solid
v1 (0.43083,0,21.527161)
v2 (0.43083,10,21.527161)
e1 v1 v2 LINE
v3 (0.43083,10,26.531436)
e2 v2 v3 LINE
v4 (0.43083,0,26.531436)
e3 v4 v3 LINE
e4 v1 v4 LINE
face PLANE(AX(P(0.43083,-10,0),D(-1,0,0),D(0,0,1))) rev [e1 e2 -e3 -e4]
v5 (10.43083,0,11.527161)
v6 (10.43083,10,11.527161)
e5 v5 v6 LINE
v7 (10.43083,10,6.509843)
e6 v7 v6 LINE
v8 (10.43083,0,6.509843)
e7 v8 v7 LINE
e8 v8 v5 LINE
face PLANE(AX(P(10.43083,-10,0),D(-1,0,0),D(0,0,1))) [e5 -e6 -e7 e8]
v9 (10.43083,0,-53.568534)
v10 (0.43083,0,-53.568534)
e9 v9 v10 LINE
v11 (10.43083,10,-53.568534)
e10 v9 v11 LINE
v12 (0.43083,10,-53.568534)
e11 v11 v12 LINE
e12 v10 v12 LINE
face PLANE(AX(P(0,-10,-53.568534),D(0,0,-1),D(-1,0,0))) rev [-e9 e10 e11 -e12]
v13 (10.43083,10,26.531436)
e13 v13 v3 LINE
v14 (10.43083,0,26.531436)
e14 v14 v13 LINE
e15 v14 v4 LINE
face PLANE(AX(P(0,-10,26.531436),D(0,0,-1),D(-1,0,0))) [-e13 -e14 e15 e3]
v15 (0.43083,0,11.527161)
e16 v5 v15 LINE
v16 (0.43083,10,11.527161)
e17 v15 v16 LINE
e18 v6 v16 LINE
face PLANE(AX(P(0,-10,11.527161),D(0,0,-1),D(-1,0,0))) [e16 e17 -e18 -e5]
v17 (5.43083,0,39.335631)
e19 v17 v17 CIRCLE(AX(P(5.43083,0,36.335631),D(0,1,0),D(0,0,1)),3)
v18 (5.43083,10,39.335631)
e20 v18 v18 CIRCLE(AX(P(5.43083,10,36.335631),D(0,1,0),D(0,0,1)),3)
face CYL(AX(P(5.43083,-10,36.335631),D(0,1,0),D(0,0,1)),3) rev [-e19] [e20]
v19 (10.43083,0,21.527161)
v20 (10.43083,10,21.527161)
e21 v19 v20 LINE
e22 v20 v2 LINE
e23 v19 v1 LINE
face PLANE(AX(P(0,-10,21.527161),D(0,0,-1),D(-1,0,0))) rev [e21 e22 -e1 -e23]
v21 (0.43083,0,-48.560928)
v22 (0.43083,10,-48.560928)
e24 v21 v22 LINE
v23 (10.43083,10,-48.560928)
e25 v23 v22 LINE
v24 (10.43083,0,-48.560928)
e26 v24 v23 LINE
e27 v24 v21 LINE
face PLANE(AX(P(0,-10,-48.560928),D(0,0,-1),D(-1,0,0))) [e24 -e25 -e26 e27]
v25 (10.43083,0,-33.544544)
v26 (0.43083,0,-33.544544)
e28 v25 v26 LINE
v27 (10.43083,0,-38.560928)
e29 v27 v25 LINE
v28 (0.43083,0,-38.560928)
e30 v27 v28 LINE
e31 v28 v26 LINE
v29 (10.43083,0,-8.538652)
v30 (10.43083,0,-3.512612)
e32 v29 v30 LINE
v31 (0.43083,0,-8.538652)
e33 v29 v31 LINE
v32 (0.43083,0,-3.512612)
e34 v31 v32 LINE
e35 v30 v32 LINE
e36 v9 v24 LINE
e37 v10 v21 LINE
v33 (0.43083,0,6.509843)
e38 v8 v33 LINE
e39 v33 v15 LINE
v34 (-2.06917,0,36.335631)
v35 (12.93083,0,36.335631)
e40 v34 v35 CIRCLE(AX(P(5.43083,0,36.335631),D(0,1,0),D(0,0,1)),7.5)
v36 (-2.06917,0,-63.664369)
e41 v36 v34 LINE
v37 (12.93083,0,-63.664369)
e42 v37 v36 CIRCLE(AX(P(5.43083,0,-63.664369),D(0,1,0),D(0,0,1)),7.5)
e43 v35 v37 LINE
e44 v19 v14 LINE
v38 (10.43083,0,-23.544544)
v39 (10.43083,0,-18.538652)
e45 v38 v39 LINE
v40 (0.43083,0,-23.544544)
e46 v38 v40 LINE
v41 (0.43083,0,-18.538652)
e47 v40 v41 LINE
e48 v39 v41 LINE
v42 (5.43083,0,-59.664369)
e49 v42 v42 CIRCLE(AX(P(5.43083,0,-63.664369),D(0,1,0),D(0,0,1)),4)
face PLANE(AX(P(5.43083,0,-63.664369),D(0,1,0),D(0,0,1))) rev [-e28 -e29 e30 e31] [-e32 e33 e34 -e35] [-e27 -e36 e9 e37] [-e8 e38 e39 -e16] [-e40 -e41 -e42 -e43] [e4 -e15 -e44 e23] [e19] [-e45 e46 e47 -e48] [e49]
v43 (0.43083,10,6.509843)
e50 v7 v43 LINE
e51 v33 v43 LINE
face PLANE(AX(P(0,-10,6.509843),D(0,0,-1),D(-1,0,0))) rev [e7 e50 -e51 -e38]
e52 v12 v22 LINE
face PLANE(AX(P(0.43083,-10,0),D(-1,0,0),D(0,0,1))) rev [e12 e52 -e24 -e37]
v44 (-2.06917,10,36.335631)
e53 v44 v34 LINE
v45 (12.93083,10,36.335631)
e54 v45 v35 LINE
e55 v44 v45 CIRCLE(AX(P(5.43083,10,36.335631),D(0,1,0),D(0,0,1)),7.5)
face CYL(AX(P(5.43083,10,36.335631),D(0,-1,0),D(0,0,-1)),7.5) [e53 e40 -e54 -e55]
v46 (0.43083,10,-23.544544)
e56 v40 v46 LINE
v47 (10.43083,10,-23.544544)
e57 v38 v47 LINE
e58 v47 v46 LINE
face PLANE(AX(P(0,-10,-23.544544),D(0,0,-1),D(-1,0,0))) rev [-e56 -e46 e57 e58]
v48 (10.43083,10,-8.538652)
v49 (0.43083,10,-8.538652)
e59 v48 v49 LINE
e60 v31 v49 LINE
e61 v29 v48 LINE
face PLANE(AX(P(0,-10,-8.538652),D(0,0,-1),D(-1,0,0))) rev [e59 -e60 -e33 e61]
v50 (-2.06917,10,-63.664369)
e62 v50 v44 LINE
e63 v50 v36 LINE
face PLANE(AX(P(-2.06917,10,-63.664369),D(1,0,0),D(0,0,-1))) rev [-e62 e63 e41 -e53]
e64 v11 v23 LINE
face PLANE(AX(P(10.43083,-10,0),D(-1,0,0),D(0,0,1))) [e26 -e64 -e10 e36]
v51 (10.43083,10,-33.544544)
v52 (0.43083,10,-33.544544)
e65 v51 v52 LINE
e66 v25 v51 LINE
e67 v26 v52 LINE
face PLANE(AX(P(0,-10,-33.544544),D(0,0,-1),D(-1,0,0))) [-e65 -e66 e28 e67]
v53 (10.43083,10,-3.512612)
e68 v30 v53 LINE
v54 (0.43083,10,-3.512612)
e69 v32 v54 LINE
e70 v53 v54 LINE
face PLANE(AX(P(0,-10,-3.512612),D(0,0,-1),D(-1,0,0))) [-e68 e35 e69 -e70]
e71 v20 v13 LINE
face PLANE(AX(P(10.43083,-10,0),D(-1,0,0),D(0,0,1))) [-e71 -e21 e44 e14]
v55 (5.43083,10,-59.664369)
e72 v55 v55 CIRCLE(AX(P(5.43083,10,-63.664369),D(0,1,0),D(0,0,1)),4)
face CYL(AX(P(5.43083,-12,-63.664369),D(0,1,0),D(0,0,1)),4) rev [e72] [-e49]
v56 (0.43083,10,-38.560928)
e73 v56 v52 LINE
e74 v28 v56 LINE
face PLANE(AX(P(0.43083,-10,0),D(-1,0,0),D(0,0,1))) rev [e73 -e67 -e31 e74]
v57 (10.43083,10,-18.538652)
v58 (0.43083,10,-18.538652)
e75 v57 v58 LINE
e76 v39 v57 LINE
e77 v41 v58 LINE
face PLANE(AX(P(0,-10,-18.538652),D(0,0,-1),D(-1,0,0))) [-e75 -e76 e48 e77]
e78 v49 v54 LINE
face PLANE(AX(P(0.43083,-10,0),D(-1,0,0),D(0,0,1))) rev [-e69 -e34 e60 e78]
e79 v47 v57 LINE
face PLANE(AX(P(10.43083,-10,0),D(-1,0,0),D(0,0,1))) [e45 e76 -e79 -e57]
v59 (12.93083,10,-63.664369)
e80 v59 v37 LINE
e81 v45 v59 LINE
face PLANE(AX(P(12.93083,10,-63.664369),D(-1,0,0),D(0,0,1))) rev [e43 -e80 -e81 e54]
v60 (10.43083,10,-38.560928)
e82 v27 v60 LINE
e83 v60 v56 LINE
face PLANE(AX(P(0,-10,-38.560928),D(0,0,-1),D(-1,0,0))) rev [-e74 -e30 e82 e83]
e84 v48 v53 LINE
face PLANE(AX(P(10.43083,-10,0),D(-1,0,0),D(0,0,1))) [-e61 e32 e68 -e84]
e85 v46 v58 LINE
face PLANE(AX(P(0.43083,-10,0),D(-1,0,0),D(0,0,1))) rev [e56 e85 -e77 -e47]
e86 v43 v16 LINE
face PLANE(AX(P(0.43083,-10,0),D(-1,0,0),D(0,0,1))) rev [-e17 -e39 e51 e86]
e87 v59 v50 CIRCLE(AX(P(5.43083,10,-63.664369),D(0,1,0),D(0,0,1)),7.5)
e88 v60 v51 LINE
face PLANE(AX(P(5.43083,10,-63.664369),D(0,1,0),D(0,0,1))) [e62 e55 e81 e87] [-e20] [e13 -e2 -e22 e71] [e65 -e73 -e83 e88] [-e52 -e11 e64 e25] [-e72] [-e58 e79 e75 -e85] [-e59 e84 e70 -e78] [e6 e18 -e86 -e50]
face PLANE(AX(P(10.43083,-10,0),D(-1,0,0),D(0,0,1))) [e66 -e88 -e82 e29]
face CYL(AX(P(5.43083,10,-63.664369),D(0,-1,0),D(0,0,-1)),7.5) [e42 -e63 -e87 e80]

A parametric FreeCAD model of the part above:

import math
import FreeCAD as App
import Part
import Sketcher


def add_polygon(sketch, points):
    """Adds a closed chain of lines whose ends are joined by coincident constraints."""
    first, n = sketch.GeometryCount, len(points)
    for a, b in zip(points, points[1:] + points[:1]):
        sketch.addGeometry(Part.LineSegment(App.Vector(*a, 0), App.Vector(*b, 0)), False)
    for i in range(n):
        sketch.addConstraint(Sketcher.Constraint("Coincident", first + i, 2, first + (i + 1) % n, 1))

doc = App.newDocument("Part")
params = doc.addObject("Spreadsheet::Sheet", "Params")
for row, (alias, value) in enumerate([
    ("sketch1_radius", "7.5 mm"),
    ("sketch1_height", "100 mm"),
    ("pad1_length", "10 mm"),
    ("sketch2_diameter", "8 mm"),
    ("pocket1_length", "22 mm"),
    ("sketch3_diameter", "6 mm"),
    ("sketch3_width", "10 mm"),
    ("pocket2_length", "20 mm"),
], start=1):
    params.set(f"A{row}", alias)
    params.set(f"B{row}", "=" + value)
    params.setAlias(f"B{row}", alias)

body = doc.addObject("PartDesign::Body", "Body")

sketch1 = body.newObject("Sketcher::SketchObject", "Sketch")
sketch1.AttachmentSupport = (doc.getObject("XZ_Plane"), [""])
sketch1.MapMode = "FlatFace"
sketch1.addGeometry([
    Part.LineSegment(App.Vector(13, 36, 0), App.Vector(13, -64, 0)),
    Part.ArcOfCircle(Part.Circle(App.Vector(5, -64, 0), App.Vector(0, 0, 1), 8), math.radians(180), math.radians(360)),
    Part.LineSegment(App.Vector(-2, -64, 0), App.Vector(-2, 36, 0)),
    Part.ArcOfCircle(Part.Circle(App.Vector(5, 36, 0), App.Vector(0, 0, 1), 8), math.radians(0), math.radians(180)),
], False)
sketch1.addConstraint([
    Sketcher.Constraint("Tangent", 0, 2, 1, 2),
    Sketcher.Constraint("Tangent", 1, 1, 2, 1),
    Sketcher.Constraint("Tangent", 2, 2, 3, 2),
    Sketcher.Constraint("Tangent", 3, 1, 0, 1),
    Sketcher.Constraint("Vertical", 0),
    Sketcher.Constraint("Vertical", 2),
    Sketcher.Constraint("Radius", 1, 7.5),
    Sketcher.Constraint("DistanceY", 0, 2, 0, 1, 100.0),
    Sketcher.Constraint("DistanceX", -1, 1, 1, 3, 5.43083),
    Sketcher.Constraint("DistanceY", 1, 3, -1, 1, 63.664369),
])
sketch1.setExpression("Constraints[6]", "Params.sketch1_radius")
sketch1.setExpression("Constraints[7]", "Params.sketch1_height")
pad1 = body.newObject("PartDesign::Pad", "Pad")
pad1.Profile = sketch1
pad1.setExpression("Length", "Params.pad1_length")
pad1.Reversed = True

sketch2 = body.newObject("Sketcher::SketchObject", "Sketch001")
sketch2.AttachmentSupport = (doc.getObject("XZ_Plane"), [""])
sketch2.MapMode = "FlatFace"
sketch2.AttachmentOffset = App.Placement(App.Vector(0, 0, -10), App.Rotation())
sketch2.addGeometry(Part.Circle(App.Vector(5.4, -63.7, 0), App.Vector(0, 0, 1), 4), False)
sketch2.addConstraint([
    Sketcher.Constraint("Diameter", 0, 8.0),
    Sketcher.Constraint("DistanceX", -1, 1, 0, 3, 5.43083),
    Sketcher.Constraint("DistanceY", 0, 3, -1, 1, 63.664369),
])
sketch2.setExpression("Constraints[0]", "Params.sketch2_diameter")
pocket1 = body.newObject("PartDesign::Pocket", "Pocket")
pocket1.Profile = sketch2
pocket1.setExpression("Length", "Params.pocket1_length")
pocket1.Reversed = True

sketch3 = body.newObject("Sketcher::SketchObject", "Sketch002")
sketch3.AttachmentSupport = (doc.getObject("XZ_Plane"), [""])
sketch3.MapMode = "FlatFace"
sketch3.AttachmentOffset = App.Placement(App.Vector(0, 0, -10), App.Rotation())
sketch3.addGeometry(Part.Circle(App.Vector(5.4, 36.3, 0), App.Vector(0, 0, 1), 3), False)
add_polygon(sketch3, [(0.4, 21.5), (0.4, 26.5), (10.4, 26.5), (10.4, 21.5)])
add_polygon(sketch3, [(0.4, 6.5), (0.4, 11.5), (10.4, 11.5), (10.4, 6.5)])
add_polygon(sketch3, [(0.4, -8.5), (0.4, -3.5), (10.4, -3.5), (10.4, -8.5)])
add_polygon(sketch3, [(0.4, -23.5), (0.4, -18.5), (10.4, -18.5), (10.4, -23.5)])
add_polygon(sketch3, [(0.4, -38.6), (0.4, -33.5), (10.4, -33.5), (10.4, -38.6)])
add_polygon(sketch3, [(0.4, -53.6), (0.4, -48.6), (10.4, -48.6), (10.4, -53.6)])
sketch3.addConstraint([
    Sketcher.Constraint("Vertical", 1),
    Sketcher.Constraint("Horizontal", 2),
    Sketcher.Constraint("Vertical", 3),
    Sketcher.Constraint("Horizontal", 4),
    Sketcher.Constraint("Vertical", 5),
    Sketcher.Constraint("Horizontal", 6),
    Sketcher.Constraint("Vertical", 7),
    Sketcher.Constraint("Horizontal", 8),
    Sketcher.Constraint("Vertical", 9),
    Sketcher.Constraint("Horizontal", 10),
    Sketcher.Constraint("Vertical", 11),
    Sketcher.Constraint("Horizontal", 12),
    Sketcher.Constraint("Vertical", 13),
    Sketcher.Constraint("Horizontal", 14),
    Sketcher.Constraint("Vertical", 15),
    Sketcher.Constraint("Horizontal", 16),
    Sketcher.Constraint("Vertical", 17),
    Sketcher.Constraint("Horizontal", 18),
    Sketcher.Constraint("Vertical", 19),
    Sketcher.Constraint("Horizontal", 20),
    Sketcher.Constraint("Vertical", 21),
    Sketcher.Constraint("Horizontal", 22),
    Sketcher.Constraint("Vertical", 23),
    Sketcher.Constraint("Horizontal", 24),
    Sketcher.Constraint("Vertical", 4, 2, 5, 2),
    Sketcher.Constraint("Vertical", 3, 2, 6, 2),
    Sketcher.Constraint("Vertical", 8, 2, 9, 2),
    Sketcher.Constraint("Vertical", 7, 2, 10, 2),
    Sketcher.Constraint("Vertical", 12, 2, 13, 2),
    Sketcher.Constraint("Vertical", 11, 2, 14, 2),
    Sketcher.Constraint("Vertical", 16, 2, 17, 2),
    Sketcher.Constraint("Vertical", 15, 2, 18, 2),
    Sketcher.Constraint("Vertical", 20, 2, 21, 2),
    Sketcher.Constraint("Vertical", 19, 2, 22, 2),
    Sketcher.Constraint("Diameter", 0, 6.0),
    Sketcher.Constraint("DistanceX", 2, 1, 2, 2, 10.0),
    Sketcher.Constraint("DistanceX", 1, 2, 0, 3, 5.0),
    Sketcher.Constraint("DistanceY", 5, 2, 4, 2, 10.0),
    Sketcher.Constraint("DistanceY", 13, 2, 12, 2, 10.0),
    Sketcher.Constraint("DistanceY", 17, 2, 16, 2, 10.0),
    Sketcher.Constraint("DistanceY", 21, 2, 20, 2, 10.0),
    Sketcher.Constraint("DistanceY", 9, 1, 9, 2, 5.02604),
    Sketcher.Constraint("DistanceY", 13, 1, 13, 2, 5.005892),
    Sketcher.Constraint("DistanceY", 1, 1, 1, 2, 5.004276),
    Sketcher.Constraint("DistanceY", 5, 1, 5, 2, 5.017318),
    Sketcher.Constraint("DistanceY", 17, 1, 17, 2, 5.016384),
    Sketcher.Constraint("DistanceY", 21, 1, 21, 2, 5.007606),
    Sketcher.Constraint("DistanceX", -1, 1, 0, 3, 5.43083),
    Sketcher.Constraint("DistanceY", -1, 1, 0, 3, 36.335631),
    Sketcher.Constraint("DistanceY", -1, 1, 3, 2, 21.527161),
    Sketcher.Constraint("DistanceY", 9, 2, -1, 1, 3.512612),
])
sketch3.setExpression("Constraints[58]", "Params.sketch3_diameter")
sketch3.setExpression("Constraints[59]", "Params.sketch3_width")
pocket2 = body.newObject("PartDesign::Pocket", "Pocket001")
pocket2.Profile = sketch3
pocket2.setExpression("Length", "Params.pocket2_length")
pocket2.Reversed = True

doc.recompute()
